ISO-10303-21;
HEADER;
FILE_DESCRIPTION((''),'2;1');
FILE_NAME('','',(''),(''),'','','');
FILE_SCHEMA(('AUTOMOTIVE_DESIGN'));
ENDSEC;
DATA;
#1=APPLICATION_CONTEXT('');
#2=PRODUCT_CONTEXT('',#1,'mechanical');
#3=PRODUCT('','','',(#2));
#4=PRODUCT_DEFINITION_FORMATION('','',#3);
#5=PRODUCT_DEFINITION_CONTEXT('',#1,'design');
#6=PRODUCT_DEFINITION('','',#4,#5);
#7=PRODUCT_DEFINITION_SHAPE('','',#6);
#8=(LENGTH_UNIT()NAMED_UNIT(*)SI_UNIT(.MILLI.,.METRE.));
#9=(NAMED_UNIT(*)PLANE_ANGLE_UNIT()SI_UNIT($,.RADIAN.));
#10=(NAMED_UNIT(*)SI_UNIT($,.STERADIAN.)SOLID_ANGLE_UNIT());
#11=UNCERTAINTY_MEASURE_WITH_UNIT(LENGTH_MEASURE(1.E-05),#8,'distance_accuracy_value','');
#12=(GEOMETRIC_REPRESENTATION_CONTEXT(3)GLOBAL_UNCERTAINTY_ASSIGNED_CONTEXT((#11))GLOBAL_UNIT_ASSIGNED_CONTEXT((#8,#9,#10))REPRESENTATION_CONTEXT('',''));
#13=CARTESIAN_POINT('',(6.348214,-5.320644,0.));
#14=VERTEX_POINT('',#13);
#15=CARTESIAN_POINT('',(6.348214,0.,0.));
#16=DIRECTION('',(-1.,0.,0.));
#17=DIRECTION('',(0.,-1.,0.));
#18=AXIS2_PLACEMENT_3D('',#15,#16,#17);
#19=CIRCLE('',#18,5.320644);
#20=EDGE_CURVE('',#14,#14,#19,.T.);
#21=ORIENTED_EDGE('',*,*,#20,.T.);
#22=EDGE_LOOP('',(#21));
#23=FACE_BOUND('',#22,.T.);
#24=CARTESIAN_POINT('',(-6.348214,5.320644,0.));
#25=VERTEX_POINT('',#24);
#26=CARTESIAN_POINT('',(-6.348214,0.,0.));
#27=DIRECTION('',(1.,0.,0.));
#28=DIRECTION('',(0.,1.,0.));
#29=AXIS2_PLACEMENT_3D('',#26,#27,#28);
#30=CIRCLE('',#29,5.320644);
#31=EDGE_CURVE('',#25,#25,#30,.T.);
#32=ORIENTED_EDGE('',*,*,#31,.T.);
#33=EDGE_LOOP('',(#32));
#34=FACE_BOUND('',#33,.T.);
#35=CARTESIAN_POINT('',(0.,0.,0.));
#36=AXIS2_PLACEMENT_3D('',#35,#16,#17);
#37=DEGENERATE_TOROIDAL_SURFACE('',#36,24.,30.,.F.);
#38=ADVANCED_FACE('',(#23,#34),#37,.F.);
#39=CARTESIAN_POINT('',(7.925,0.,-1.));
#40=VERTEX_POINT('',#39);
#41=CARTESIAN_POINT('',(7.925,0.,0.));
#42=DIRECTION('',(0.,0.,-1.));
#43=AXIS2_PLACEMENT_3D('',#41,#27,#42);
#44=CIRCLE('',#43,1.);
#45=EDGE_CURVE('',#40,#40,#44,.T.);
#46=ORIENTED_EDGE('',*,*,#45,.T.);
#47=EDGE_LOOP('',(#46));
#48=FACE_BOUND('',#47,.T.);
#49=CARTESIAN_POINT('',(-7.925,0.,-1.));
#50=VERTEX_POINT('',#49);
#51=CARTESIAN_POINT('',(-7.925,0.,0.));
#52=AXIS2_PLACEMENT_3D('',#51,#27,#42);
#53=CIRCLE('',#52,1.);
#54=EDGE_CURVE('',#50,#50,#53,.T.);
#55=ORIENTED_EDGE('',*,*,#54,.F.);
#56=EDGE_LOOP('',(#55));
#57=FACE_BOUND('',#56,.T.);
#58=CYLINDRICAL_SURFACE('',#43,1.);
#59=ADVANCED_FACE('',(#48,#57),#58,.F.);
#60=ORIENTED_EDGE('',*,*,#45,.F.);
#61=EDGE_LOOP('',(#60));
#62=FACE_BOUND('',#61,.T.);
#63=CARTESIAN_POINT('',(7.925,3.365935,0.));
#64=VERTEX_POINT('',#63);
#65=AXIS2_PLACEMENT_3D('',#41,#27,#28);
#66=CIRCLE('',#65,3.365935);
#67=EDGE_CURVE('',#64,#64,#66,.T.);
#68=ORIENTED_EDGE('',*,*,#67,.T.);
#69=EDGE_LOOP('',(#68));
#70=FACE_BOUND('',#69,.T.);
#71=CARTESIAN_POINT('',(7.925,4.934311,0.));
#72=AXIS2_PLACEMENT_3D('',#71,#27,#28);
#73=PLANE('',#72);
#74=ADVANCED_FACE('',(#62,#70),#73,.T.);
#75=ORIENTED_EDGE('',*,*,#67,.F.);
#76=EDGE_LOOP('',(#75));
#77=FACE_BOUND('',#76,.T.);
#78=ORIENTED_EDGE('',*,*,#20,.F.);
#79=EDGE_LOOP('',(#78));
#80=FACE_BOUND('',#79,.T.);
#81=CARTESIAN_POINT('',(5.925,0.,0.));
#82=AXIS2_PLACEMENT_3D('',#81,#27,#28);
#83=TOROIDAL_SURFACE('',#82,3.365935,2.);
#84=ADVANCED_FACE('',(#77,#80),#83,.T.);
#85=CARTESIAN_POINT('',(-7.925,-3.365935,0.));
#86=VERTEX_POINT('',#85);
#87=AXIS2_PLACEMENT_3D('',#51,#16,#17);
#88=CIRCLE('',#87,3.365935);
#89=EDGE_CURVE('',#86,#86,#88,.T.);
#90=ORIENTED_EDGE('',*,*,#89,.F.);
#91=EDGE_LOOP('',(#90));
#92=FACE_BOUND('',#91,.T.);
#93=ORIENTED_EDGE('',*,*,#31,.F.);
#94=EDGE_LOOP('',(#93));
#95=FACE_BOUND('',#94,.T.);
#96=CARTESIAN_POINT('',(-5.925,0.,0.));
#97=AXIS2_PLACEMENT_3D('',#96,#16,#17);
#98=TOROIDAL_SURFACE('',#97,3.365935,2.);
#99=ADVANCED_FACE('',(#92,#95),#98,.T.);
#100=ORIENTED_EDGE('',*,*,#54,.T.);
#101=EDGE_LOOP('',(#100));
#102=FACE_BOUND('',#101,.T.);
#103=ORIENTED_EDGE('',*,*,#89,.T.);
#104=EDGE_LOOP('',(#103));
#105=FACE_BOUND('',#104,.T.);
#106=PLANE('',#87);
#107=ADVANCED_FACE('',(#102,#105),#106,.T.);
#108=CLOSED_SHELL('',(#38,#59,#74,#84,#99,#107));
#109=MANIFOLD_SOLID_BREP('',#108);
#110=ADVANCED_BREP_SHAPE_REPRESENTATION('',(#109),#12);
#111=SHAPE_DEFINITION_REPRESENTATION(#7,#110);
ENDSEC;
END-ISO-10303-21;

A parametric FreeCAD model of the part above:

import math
import FreeCAD as App
import Part
import Sketcher

V = App.Vector


def edges_at(feature, points):
    """Names of the edges that pass closest to the given points."""
    edges = feature.Shape.Edges
    near = lambda p: min(range(len(edges)), key=lambda i: edges[i].distToShape(Part.Vertex(*p))[0])
    return sorted({f"Edge{near(p) + 1}" for p in points})

doc = App.newDocument("Part")
body = doc.addObject("PartDesign::Body", "Body")

sketch1 = body.newObject("Sketcher::SketchObject", "Sketch")
sketch1.AttachmentSupport = (doc.getObject("XY_Plane"), [""])
sketch1.MapMode = "FlatFace"
sketch1.addGeometry(Part.LineSegment(V(7.9, 4.9, 0), V(7.9, 0, 0)), False)
sketch1.addGeometry(Part.LineSegment(V(7.9, 0, 0), V(-7.9, 0, 0)), False)
sketch1.addGeometry(Part.LineSegment(V(-7.9, 0, 0), V(-7.9, 4.9, 0)), False)
sketch1.addGeometry(Part.ArcOfCircle(Part.Circle(V(0, -24, 0), V(0, 0, 1), 30), math.radians(75), math.radians(105)), False)
sketch1.addConstraint(Sketcher.Constraint("Coincident", 0, 2, 1, 1))
sketch1.addConstraint(Sketcher.Constraint("Coincident", 1, 2, 2, 1))
sketch1.addConstraint(Sketcher.Constraint("Coincident", 2, 2, 3, 2))
sketch1.addConstraint(Sketcher.Constraint("Coincident", 3, 1, 0, 1))
sketch1.addConstraint(Sketcher.Constraint("Vertical", 0))
sketch1.addConstraint(Sketcher.Constraint("Horizontal", 1))
sketch1.addConstraint(Sketcher.Constraint("Vertical", 2))
sketch1.addConstraint(Sketcher.Constraint("Symmetric", 0, 2, 1, 2, -1, 1))
sketch1.addConstraint(Sketcher.Constraint("PointOnObject", 3, 3, -2))
sketch1.addConstraint(Sketcher.Constraint("Radius", 3, 30.0))
sketch1.addConstraint(Sketcher.Constraint("DistanceY", 3, 3, -1, 1, 24.0))
sketch1.addConstraint(Sketcher.Constraint("DistanceX", 1, 2, 1, 1, 15.85))
revolution = body.newObject("PartDesign::Revolution", "Revolution")
revolution.Profile = sketch1
revolution.ReferenceAxis = (sketch1, ["H_Axis"])
revolution.Angle = 360
doc.recompute()

fillet = body.newObject("PartDesign::Fillet", "Fillet")
fillet.Base = (revolution, edges_at(revolution, [(7.925, -4.934, 0)]))
fillet.Radius = 2
doc.recompute()

fillet2 = body.newObject("PartDesign::Fillet", "Fillet001")
fillet2.Base = (fillet, edges_at(fillet, [(-7.925, -4.934, 0)]))
fillet2.Radius = 2

sketch2 = body.newObject("Sketcher::SketchObject", "Sketch001")
sketch2.AttachmentSupport = (doc.getObject("YZ_Plane"), [""])
sketch2.MapMode = "FlatFace"
sketch2.AttachmentOffset = App.Placement(V(0, 0, 7.925), App.Rotation())
sketch2.addGeometry(Part.Circle(V(0, 0, 0), V(0, 0, 1), 1), False)
sketch2.addConstraint(Sketcher.Constraint("Coincident", 0, 3, -1, 1))
sketch2.addConstraint(Sketcher.Constraint("Diameter", 0, 2.0))
doc.recompute()
hole = body.newObject("PartDesign::Hole", "Hole")
hole.Profile = sketch2
hole.ThreadType = "None"
hole.Diameter = 2
hole.DepthType = "Dimension"
hole.Depth = 15.85
hole.DrillPoint = "Flat"

doc.recompute()
